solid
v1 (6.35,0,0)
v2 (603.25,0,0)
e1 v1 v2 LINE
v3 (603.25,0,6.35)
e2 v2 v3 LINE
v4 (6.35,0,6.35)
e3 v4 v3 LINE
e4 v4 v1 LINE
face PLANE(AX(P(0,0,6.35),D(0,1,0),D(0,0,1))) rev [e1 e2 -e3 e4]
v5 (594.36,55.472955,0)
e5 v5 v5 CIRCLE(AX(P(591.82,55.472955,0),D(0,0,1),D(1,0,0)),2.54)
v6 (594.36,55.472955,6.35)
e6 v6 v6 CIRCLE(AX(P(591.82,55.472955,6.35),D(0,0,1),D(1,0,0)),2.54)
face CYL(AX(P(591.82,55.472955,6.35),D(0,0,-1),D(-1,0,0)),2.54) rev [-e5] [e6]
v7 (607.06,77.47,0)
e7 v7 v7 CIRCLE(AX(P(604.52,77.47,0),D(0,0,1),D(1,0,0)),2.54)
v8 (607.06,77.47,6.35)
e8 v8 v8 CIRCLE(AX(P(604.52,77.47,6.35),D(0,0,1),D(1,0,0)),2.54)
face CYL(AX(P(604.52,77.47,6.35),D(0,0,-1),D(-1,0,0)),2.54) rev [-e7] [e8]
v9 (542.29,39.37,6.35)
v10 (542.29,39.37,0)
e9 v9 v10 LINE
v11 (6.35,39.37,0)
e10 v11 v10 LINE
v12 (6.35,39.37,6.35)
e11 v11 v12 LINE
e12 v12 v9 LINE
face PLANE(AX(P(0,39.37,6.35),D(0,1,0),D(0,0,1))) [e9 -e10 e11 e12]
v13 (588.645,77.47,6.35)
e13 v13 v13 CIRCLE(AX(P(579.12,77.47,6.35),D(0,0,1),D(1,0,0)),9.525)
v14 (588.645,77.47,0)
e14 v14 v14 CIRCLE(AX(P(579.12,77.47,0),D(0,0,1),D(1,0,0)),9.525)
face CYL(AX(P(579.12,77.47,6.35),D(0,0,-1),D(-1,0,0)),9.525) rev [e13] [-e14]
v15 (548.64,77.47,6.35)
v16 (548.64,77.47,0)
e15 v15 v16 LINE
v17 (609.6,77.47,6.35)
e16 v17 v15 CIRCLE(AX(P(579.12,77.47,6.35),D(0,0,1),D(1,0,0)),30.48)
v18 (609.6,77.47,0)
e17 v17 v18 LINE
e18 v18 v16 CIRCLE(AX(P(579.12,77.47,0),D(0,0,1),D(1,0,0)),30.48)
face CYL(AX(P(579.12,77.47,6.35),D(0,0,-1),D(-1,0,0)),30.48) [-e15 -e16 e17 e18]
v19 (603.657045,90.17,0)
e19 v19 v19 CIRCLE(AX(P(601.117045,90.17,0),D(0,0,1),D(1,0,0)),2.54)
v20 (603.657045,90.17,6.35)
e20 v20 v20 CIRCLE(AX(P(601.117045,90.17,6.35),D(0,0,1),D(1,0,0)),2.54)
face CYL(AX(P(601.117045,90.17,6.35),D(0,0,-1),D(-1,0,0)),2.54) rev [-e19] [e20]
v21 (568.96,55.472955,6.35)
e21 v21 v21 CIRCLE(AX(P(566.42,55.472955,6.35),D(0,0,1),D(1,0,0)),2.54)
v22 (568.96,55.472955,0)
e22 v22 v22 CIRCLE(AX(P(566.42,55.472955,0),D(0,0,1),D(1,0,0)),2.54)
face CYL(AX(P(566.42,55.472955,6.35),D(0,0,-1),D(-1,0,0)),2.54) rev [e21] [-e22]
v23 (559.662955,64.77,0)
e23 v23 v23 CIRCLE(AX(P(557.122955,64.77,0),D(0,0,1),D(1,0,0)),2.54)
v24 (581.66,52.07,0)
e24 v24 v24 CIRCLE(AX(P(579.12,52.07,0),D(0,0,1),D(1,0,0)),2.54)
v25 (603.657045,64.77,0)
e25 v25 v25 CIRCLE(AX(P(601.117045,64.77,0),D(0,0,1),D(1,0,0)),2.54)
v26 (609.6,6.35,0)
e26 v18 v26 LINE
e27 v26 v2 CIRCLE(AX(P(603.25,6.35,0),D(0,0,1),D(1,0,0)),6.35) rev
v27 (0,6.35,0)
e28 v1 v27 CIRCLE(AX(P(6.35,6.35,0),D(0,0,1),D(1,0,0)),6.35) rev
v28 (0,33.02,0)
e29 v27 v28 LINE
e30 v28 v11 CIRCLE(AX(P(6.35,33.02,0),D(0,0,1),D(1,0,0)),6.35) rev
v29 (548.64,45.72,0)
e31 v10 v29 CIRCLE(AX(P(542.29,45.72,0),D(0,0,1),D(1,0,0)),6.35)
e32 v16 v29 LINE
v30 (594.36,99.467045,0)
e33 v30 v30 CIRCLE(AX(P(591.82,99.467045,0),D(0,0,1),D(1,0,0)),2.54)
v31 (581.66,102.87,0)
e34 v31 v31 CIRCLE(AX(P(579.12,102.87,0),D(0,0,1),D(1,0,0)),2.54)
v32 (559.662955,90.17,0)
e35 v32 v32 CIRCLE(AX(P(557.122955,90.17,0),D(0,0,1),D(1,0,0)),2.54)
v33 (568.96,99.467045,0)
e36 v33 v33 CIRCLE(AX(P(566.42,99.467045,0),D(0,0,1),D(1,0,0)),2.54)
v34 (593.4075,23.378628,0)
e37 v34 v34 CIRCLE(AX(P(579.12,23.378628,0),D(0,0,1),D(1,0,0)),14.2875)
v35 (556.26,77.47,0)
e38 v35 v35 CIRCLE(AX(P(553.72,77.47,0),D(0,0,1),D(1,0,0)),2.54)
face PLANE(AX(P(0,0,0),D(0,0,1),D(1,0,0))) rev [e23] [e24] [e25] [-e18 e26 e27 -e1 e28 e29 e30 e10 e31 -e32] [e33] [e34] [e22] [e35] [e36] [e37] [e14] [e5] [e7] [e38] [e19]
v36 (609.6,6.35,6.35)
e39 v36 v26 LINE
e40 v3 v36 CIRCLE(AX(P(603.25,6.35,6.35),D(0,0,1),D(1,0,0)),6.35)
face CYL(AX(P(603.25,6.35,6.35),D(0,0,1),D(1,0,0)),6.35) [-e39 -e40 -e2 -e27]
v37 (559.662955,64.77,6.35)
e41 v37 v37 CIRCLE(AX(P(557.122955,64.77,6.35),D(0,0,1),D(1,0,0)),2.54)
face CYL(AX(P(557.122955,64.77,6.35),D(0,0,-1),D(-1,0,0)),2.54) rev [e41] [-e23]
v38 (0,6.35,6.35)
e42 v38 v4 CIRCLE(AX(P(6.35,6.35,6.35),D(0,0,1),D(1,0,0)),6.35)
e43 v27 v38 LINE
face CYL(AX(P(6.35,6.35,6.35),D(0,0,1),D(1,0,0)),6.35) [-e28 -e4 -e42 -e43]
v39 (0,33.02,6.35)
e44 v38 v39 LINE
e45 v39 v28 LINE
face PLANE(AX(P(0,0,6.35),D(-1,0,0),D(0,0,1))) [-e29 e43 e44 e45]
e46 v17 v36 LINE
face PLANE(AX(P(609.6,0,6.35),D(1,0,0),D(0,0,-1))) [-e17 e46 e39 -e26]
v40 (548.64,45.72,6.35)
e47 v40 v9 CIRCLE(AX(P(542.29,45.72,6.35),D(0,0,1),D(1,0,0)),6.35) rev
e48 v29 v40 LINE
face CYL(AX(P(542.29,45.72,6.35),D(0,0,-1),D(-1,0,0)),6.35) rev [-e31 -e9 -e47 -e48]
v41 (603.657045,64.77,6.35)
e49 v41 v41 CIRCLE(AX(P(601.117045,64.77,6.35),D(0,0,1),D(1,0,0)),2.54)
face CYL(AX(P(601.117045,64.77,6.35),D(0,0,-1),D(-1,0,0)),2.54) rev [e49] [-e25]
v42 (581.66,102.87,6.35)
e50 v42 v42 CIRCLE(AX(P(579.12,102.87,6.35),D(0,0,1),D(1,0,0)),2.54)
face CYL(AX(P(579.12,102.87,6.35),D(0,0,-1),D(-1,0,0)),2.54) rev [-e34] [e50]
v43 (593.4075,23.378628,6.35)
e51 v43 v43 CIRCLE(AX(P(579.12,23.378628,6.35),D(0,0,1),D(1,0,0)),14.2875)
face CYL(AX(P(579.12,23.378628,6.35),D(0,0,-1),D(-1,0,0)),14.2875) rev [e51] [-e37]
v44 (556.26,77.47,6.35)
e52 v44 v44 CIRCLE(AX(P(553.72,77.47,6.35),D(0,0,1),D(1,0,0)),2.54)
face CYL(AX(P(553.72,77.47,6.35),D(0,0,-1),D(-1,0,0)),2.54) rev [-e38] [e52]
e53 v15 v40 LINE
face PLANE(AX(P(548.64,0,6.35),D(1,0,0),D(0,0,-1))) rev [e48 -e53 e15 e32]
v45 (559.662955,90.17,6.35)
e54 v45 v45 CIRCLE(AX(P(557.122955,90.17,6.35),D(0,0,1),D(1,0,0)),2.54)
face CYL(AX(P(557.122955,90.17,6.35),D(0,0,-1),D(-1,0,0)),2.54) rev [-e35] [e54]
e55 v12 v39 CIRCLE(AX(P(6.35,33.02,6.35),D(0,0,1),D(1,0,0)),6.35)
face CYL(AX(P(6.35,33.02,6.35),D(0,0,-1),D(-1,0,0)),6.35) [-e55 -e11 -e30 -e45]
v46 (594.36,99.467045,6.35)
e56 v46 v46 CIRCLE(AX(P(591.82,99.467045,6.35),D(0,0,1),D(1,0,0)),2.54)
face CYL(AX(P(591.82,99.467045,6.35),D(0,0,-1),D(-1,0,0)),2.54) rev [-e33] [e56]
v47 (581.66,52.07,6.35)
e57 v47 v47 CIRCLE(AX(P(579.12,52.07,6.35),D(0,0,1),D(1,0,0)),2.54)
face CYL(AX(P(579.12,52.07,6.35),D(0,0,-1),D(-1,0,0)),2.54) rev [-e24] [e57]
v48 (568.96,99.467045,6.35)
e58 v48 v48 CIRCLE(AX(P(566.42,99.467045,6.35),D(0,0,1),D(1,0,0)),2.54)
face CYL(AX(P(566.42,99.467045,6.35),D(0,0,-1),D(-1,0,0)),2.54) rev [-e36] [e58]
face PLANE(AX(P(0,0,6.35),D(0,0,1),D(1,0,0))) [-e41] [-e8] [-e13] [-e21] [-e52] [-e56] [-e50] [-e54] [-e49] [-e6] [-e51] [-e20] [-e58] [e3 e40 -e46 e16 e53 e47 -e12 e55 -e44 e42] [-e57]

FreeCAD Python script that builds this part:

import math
import FreeCAD as App
import Part
import Sketcher
Q = App.Units.Quantity


def edges_at(feature, points):
    """Names of the edges that pass closest to the given points."""
    edges = feature.Shape.Edges
    near = lambda p: min(range(len(edges)), key=lambda i: edges[i].distToShape(Part.Vertex(*p))[0])
    return sorted({f"Edge{near(p) + 1}" for p in points})

doc = App.newDocument("Part")
body = doc.addObject("PartDesign::Body", "Body")

sketch1 = doc.addObject("Sketcher::SketchObject", "Sketch")
body.addObject(sketch1)
sketch1.AttachmentSupport = (doc.XY_Plane, [""])
sketch1.MapMode = "FlatFace"
sketch1.addGeometry([
    Part.LineSegment(App.Vector(0, 39.4, 0), App.Vector(0, 0, 0)),
    Part.LineSegment(App.Vector(0, 0, 0), App.Vector(609.6, 0, 0)),
    Part.LineSegment(App.Vector(609.6, 0, 0), App.Vector(609.6, 77.5, 0)),
    Part.ArcOfCircle(Part.Circle(App.Vector(579.1, 77.5, 0), App.Vector(0, 0, 1), 30.5), math.radians(0), math.radians(180)),
    Part.LineSegment(App.Vector(548.6, 77.5, 0), App.Vector(548.6, 39.4, 0)),
    Part.LineSegment(App.Vector(548.6, 39.4, 0), App.Vector(0, 39.4, 0)),
    Part.Circle(App.Vector(579.1, 23.4, 0), App.Vector(0, 0, 1), 14.3),
    Part.Circle(App.Vector(591.8, 55.5, 0), App.Vector(0, 0, 1), 2.5),
    Part.Circle(App.Vector(579.1, 52.1, 0), App.Vector(0, 0, 1), 2.5),
    Part.Circle(App.Vector(566.4, 55.5, 0), App.Vector(0, 0, 1), 2.5),
    Part.Circle(App.Vector(601.1, 64.8, 0), App.Vector(0, 0, 1), 2.5),
    Part.Circle(App.Vector(604.5, 77.5, 0), App.Vector(0, 0, 1), 2.5),
    Part.Circle(App.Vector(579.1, 77.5, 0), App.Vector(0, 0, 1), 9.5),
    Part.Circle(App.Vector(601.1, 90.2, 0), App.Vector(0, 0, 1), 2.5),
    Part.Circle(App.Vector(591.8, 99.5, 0), App.Vector(0, 0, 1), 2.5),
    Part.Circle(App.Vector(579.1, 102.9, 0), App.Vector(0, 0, 1), 2.5),
    Part.Circle(App.Vector(557.1, 64.8, 0), App.Vector(0, 0, 1), 2.5),
    Part.Circle(App.Vector(553.7, 77.5, 0), App.Vector(0, 0, 1), 2.5),
    Part.Circle(App.Vector(566.4, 99.5, 0), App.Vector(0, 0, 1), 2.5),
    Part.Circle(App.Vector(557.1, 90.2, 0), App.Vector(0, 0, 1), 2.5),
], False)
sketch1.addConstraint([
    Sketcher.Constraint("Coincident", 0, 2, 1, 1),
    Sketcher.Constraint("Coincident", 1, 2, 2, 1),
    Sketcher.Constraint("Tangent", 2, 2, 3, 1),
    Sketcher.Constraint("Tangent", 3, 2, 4, 1),
    Sketcher.Constraint("Coincident", 4, 2, 5, 1),
    Sketcher.Constraint("Coincident", 5, 2, 0, 1),
    Sketcher.Constraint("Vertical", 0),
    Sketcher.Constraint("Horizontal", 1),
    Sketcher.Constraint("Vertical", 2),
    Sketcher.Constraint("Vertical", 4),
    Sketcher.Constraint("Horizontal", 5),
    Sketcher.Constraint("Coincident", 0, 2, -1, 1),
    Sketcher.Constraint("Coincident", 12, 3, 3, 3),
    Sketcher.Constraint("Equal", 7, 8),
    Sketcher.Constraint("Equal", 8, 9),
    Sketcher.Constraint("Equal", 9, 10),
    Sketcher.Constraint("Equal", 10, 11),
    Sketcher.Constraint("Equal", 11, 13),
    Sketcher.Constraint("Equal", 13, 14),
    Sketcher.Constraint("Equal", 14, 15),
    Sketcher.Constraint("Equal", 15, 16),
    Sketcher.Constraint("Equal", 16, 17),
    Sketcher.Constraint("Equal", 17, 18),
    Sketcher.Constraint("Equal", 18, 19),
    Sketcher.Constraint("Horizontal", 7, 3, 9, 3),
    Sketcher.Constraint("Horizontal", 3, 3, 11, 3),
    Sketcher.Constraint("Horizontal", 10, 3, 16, 3),
    Sketcher.Constraint("Horizontal", 12, 3, 17, 3),
    Sketcher.Constraint("Horizontal", 14, 3, 18, 3),
    Sketcher.Constraint("Horizontal", 13, 3, 19, 3),
    Sketcher.Constraint("Vertical", 3, 3, 6, 3),
    Sketcher.Constraint("Vertical", 6, 3, 8, 3),
    Sketcher.Constraint("Vertical", 10, 3, 13, 3),
    Sketcher.Constraint("Vertical", 7, 3, 14, 3),
    Sketcher.Constraint("Vertical", 12, 3, 15, 3),
    Sketcher.Constraint("Vertical", 9, 3, 18, 3),
    Sketcher.Constraint("Vertical", 16, 3, 19, 3),
    Sketcher.Constraint("Diameter", 7, Q("0.2 in")),
    Sketcher.Constraint("Radius", 3, Q("1.2 in")),
    Sketcher.Constraint("Diameter", 12, Q("0.75 in")),
    Sketcher.Constraint("DistanceX", 1, 1, 1, 2, Q("24 in")),
    Sketcher.Constraint("Diameter", 6, Q("1.125 in")),
    Sketcher.Constraint("DistanceY", 4, 2, 4, 1, Q("1.5 in")),
    Sketcher.Constraint("DistanceY", 8, 3, 3, 3, Q("1 in")),
    Sketcher.Constraint("DistanceX", 9, 3, 7, 3, Q("1 in")),
    Sketcher.Constraint("DistanceX", 3, 3, 11, 3, Q("1 in")),
    Sketcher.Constraint("DistanceY", 10, 3, 13, 3, Q("1 in")),
    Sketcher.Constraint("DistanceY", 3, 3, 15, 3, Q("1 in")),
    Sketcher.Constraint("DistanceX", 17, 3, 3, 3, Q("1 in")),
    Sketcher.Constraint("DistanceY", 4, 2, 16, 3, Q("1 in")),
    Sketcher.Constraint("DistanceY", 0, 2, 0, 1, Q("1.55 in")),
    Sketcher.Constraint("DistanceX", -1, 1, 7, 3, Q("23.3 in")),
    Sketcher.Constraint("DistanceY", -1, 1, 6, 3, Q("23.378628 mm")),
    Sketcher.Constraint("DistanceY", -1, 1, 7, 3, Q("55.472955 mm")),
    Sketcher.Constraint("DistanceX", -1, 1, 10, 3, Q("601.117045 mm")),
    Sketcher.Constraint("DistanceY", -1, 1, 14, 3, Q("99.467045 mm")),
    Sketcher.Constraint("DistanceX", -1, 1, 16, 3, Q("557.122955 mm")),
])
pad1 = doc.addObject("PartDesign::Pad", "Pad")
body.addObject(pad1)
pad1.Profile = sketch1
pad1.Length = Q("0.25 in")
doc.recompute()

fillet = doc.addObject("PartDesign::Fillet", "Fillet")
body.addObject(fillet)
fillet.Base = (pad1, edges_at(pad1, [
    (609.6, 0, 3.175),
    (0, 0, 3.175),
    (0, 39.37, 3.175),
    (548.64, 39.37, 3.175),
]))
fillet.Radius = Q("0.25 in")

doc.recompute()
